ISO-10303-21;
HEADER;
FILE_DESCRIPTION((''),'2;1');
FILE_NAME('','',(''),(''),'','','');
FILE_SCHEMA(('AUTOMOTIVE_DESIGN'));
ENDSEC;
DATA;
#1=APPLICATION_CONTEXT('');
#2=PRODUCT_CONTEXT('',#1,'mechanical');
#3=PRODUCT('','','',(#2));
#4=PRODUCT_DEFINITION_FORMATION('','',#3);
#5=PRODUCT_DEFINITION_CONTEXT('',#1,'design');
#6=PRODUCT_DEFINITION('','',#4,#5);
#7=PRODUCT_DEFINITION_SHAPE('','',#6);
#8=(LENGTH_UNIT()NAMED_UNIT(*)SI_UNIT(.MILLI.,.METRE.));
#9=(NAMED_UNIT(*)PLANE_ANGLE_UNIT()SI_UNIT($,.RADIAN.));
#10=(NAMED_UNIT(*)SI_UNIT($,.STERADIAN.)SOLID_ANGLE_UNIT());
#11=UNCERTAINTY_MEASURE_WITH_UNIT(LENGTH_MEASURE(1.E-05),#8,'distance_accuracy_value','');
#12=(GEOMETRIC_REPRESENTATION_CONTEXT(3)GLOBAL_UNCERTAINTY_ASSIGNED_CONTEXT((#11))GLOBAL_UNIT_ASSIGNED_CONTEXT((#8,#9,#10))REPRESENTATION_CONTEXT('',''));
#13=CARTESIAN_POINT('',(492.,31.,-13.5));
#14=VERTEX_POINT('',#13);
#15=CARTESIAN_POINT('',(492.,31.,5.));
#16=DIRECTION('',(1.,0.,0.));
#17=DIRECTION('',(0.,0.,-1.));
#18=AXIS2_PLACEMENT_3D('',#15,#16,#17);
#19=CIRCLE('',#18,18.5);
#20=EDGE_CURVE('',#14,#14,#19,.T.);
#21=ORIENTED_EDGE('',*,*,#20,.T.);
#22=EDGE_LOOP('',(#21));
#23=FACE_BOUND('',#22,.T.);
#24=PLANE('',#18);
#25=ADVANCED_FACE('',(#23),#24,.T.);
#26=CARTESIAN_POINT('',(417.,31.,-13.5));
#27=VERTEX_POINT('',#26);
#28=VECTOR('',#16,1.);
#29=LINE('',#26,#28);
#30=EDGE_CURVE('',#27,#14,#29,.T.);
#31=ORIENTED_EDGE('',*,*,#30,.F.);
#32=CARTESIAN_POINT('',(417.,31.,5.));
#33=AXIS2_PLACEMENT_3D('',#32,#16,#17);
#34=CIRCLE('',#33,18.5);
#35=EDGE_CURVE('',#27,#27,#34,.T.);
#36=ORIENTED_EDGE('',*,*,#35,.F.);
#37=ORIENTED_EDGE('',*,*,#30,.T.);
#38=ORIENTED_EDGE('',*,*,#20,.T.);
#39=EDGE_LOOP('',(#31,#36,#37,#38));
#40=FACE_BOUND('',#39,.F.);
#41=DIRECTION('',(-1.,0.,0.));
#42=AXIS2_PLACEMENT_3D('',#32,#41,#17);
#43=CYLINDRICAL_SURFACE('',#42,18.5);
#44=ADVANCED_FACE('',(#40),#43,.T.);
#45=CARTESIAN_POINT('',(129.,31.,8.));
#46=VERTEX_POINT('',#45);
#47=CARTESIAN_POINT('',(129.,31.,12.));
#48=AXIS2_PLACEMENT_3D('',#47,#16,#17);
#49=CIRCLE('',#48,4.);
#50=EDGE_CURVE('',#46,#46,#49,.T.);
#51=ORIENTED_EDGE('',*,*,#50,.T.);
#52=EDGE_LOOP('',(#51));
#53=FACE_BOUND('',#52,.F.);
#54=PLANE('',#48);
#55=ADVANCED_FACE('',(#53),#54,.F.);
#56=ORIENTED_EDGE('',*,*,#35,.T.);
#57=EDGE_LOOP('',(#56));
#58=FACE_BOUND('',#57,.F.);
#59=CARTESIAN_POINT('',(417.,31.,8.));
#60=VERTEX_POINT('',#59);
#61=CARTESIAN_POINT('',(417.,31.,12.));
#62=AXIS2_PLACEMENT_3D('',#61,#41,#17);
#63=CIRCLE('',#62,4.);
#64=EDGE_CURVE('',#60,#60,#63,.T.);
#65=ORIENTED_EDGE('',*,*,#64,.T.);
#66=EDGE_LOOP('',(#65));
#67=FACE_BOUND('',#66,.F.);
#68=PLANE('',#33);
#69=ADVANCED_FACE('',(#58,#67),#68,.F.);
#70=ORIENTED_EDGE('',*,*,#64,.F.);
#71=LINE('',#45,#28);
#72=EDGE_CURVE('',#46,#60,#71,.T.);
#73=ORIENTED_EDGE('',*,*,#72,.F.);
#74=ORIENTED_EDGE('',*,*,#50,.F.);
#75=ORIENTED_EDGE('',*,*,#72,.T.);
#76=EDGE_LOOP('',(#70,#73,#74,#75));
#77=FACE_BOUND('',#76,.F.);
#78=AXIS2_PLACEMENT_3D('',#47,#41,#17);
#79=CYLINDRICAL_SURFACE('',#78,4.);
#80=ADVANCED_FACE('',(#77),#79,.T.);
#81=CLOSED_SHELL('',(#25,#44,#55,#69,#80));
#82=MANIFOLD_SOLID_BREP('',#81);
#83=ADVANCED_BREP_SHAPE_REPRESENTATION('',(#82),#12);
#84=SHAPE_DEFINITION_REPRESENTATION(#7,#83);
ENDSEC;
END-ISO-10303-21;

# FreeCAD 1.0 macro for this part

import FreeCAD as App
import Part
import Sketcher
from FreeCAD import Vector
Q = App.Units.Quantity

doc = App.newDocument("Part")
body = doc.addObject("PartDesign::Body", "Body")

# Sketch on YZ plane
sketch1 = doc.addObject("Sketcher::SketchObject", "Sketch")
body.addObject(sketch1)
sketch1.AttachmentSupport = (doc.YZ_Plane, [""])
sketch1.MapMode = "FlatFace"
sketch1.AttachmentOffset = App.Placement(Vector(0, 0, 336), App.Rotation())
sketch1.addGeometry(Part.Circle(Vector(31, 5, 0), Vector(0, 0, 1), 18), False)
sketch1.addConstraint([
    Sketcher.Constraint("Diameter", 0, Q("37 mm")),
    Sketcher.Constraint("DistanceX", -1, 1, 0, 3, Q("31 mm")),
    Sketcher.Constraint("DistanceY", -1, 1, 0, 3, Q("5 mm")),
])
pad1 = doc.addObject("PartDesign::Pad", "Pad")
body.addObject(pad1)
pad1.Profile = sketch1
pad1.Length = 75
body2 = doc.addObject("PartDesign::Body", "Body001")

# Sketch on YZ plane
sketch2 = doc.addObject("Sketcher::SketchObject", "Sketch001")
body2.addObject(sketch2)
sketch2.AttachmentSupport = (doc.getObject("YZ_Plane001"), [""])
sketch2.MapMode = "FlatFace"
sketch2.AttachmentOffset = App.Placement(Vector(0, 0, 48), App.Rotation())
sketch2.addGeometry(Part.Circle(Vector(31, 12, 0), Vector(0, 0, 1), 4), False)
sketch2.addConstraint([
    Sketcher.Constraint("Diameter", 0, Q("8 mm")),
    Sketcher.Constraint("DistanceX", -1, 1, 0, 3, Q("31 mm")),
    Sketcher.Constraint("DistanceY", -1, 1, 0, 3, Q("12 mm")),
])
pad2 = doc.addObject("PartDesign::Pad", "Pad001")
body2.addObject(pad2)
pad2.Profile = sketch2
pad2.Length = 350
doc.recompute()

boolean = doc.addObject("PartDesign::Boolean", "Boolean")
body2.addObject(boolean)
boolean.Type = "Fuse"
boolean.addObjects([body])
body3 = doc.addObject("PartDesign::Body", "Body002")
doc.recompute()

body2.Placement = App.Placement(Vector(81, 0, 0), App.Rotation(Vector(0, 0, 1), 0))
boolean2 = doc.addObject("PartDesign::Boolean", "Boolean001")
body3.addObject(boolean2)
boolean2.Type = "Fuse"
boolean2.addObjects([body2])

doc.recompute()
